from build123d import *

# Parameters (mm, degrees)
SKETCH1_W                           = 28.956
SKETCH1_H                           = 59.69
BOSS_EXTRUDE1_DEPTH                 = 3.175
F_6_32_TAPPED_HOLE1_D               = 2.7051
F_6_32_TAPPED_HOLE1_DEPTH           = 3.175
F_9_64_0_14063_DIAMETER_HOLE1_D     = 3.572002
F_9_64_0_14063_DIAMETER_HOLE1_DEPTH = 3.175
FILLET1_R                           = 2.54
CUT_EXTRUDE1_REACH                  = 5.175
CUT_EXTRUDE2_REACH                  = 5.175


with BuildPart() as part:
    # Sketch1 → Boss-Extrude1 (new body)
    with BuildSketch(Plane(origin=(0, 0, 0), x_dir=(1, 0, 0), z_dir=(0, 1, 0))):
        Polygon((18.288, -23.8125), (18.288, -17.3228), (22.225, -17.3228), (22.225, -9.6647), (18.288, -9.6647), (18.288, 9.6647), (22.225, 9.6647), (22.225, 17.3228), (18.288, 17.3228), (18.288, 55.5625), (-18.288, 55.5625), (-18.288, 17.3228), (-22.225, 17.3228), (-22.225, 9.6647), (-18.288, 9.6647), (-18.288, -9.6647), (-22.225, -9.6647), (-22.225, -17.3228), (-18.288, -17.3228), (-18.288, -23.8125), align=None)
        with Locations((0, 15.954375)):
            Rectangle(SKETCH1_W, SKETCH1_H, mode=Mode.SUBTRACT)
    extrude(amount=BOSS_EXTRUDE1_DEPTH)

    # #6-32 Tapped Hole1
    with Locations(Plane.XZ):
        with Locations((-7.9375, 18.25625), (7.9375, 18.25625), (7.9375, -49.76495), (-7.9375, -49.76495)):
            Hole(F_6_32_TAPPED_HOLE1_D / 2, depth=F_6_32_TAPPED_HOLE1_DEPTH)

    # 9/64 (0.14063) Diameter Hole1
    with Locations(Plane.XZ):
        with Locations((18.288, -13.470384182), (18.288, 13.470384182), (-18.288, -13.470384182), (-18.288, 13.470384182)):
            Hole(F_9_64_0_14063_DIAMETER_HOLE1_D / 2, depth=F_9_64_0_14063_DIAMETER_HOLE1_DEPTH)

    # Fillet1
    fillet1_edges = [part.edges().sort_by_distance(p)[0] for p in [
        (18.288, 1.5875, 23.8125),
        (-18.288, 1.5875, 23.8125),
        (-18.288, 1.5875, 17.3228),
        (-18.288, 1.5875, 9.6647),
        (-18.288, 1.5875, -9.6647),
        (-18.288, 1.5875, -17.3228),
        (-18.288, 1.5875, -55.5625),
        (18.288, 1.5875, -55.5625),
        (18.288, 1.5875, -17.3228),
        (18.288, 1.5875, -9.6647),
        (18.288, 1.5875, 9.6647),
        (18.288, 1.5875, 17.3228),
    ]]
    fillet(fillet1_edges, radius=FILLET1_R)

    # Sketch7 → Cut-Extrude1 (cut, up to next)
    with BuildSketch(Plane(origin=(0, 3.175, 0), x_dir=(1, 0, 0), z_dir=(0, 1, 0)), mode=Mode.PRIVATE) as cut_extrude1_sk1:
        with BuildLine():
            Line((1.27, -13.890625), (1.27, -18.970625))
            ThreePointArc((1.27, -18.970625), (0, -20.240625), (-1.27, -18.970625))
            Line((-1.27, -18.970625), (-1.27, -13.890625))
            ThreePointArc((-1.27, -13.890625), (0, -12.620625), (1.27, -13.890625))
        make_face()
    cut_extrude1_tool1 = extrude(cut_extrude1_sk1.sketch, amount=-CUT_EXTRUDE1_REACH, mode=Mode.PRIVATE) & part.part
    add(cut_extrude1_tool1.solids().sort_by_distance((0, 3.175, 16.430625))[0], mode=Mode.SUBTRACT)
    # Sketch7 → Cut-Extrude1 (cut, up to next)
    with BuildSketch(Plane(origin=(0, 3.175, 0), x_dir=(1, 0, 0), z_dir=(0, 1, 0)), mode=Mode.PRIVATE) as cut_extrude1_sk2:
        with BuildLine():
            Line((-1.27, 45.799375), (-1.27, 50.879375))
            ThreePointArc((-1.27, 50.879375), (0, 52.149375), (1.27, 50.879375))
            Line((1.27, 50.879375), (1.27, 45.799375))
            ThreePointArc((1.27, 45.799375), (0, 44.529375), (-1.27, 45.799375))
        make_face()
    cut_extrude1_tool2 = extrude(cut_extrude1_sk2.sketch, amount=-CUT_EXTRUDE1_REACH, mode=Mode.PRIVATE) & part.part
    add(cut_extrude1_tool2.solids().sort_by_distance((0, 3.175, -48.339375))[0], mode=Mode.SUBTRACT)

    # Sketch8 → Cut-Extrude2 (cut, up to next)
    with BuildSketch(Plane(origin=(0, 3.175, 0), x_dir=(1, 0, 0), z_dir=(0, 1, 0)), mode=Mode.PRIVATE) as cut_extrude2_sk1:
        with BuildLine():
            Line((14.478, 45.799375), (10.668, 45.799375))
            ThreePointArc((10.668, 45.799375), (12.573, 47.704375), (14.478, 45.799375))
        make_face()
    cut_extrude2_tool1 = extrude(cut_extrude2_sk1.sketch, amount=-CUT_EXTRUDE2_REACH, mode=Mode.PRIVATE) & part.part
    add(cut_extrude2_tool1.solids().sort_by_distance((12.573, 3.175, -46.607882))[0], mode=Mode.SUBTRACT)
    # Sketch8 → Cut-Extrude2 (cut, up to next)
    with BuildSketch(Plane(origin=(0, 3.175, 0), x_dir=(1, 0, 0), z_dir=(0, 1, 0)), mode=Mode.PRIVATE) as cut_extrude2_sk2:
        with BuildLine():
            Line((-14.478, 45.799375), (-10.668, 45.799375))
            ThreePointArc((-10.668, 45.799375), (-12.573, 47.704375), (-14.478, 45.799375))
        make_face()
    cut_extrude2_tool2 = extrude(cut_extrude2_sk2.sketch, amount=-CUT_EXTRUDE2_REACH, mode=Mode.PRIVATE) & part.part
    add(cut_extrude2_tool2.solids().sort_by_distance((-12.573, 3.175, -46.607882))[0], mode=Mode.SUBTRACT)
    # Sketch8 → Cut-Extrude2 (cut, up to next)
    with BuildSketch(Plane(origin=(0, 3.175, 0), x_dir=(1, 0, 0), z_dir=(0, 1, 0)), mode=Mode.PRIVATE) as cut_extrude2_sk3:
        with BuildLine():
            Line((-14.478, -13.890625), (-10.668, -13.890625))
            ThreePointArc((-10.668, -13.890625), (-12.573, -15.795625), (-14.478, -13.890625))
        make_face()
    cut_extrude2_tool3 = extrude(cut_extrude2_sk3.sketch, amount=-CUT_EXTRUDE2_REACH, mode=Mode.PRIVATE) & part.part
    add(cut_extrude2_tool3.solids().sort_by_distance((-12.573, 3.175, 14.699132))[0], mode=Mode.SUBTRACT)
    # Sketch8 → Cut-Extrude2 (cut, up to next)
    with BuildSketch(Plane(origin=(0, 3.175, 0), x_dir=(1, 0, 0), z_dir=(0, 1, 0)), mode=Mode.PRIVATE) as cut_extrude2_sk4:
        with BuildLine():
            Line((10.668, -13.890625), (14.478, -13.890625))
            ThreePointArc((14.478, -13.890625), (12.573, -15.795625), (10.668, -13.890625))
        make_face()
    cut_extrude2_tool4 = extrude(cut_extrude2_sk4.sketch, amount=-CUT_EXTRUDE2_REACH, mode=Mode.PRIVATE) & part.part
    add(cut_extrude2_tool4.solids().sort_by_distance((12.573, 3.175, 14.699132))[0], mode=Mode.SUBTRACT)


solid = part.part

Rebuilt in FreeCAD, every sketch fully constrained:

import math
import FreeCAD as App
import Part
import Sketcher
from FreeCAD import Vector
Q = App.Units.Quantity


def edges_at(feature, points):
    """Names of the edges that pass closest to the given points."""
    edges = feature.Shape.Edges
    near = lambda p: min(range(len(edges)), key=lambda i: edges[i].distToShape(Part.Vertex(*p))[0])
    return sorted({f"Edge{near(p) + 1}" for p in points})

doc = App.newDocument("Part")
body = doc.addObject("PartDesign::Body", "Body")

sketch1 = doc.addObject("Sketcher::SketchObject", "Sketch")
body.addObject(sketch1)
sketch1.AttachmentSupport = (doc.XZ_Plane, [""])
sketch1.MapMode = "FlatFace"
sketch1.addGeometry(Part.LineSegment(Vector(18.3, 23.8, 0), Vector(18.3, 17.3, 0)), False)
sketch1.addGeometry(Part.LineSegment(Vector(18.3, 17.3, 0), Vector(22.2, 17.3, 0)), False)
sketch1.addGeometry(Part.LineSegment(Vector(22.2, 17.3, 0), Vector(22.2, 9.7, 0)), False)
sketch1.addGeometry(Part.LineSegment(Vector(22.2, 9.7, 0), Vector(18.3, 9.7, 0)), False)
sketch1.addGeometry(Part.LineSegment(Vector(18.3, 9.7, 0), Vector(18.3, -9.7, 0)), False)
sketch1.addGeometry(Part.LineSegment(Vector(18.3, -9.7, 0), Vector(22.2, -9.7, 0)), False)
sketch1.addGeometry(Part.LineSegment(Vector(22.2, -9.7, 0), Vector(22.2, -17.3, 0)), False)
sketch1.addGeometry(Part.LineSegment(Vector(22.2, -17.3, 0), Vector(18.3, -17.3, 0)), False)
sketch1.addGeometry(Part.LineSegment(Vector(18.3, -17.3, 0), Vector(18.3, -55.6, 0)), False)
sketch1.addGeometry(Part.LineSegment(Vector(18.3, -55.6, 0), Vector(-18.3, -55.6, 0)), False)
sketch1.addGeometry(Part.LineSegment(Vector(-18.3, -55.6, 0), Vector(-18.3, -17.3, 0)), False)
sketch1.addGeometry(Part.LineSegment(Vector(-18.3, -17.3, 0), Vector(-22.2, -17.3, 0)), False)
sketch1.addGeometry(Part.LineSegment(Vector(-22.2, -17.3, 0), Vector(-22.2, -9.7, 0)), False)
sketch1.addGeometry(Part.LineSegment(Vector(-22.2, -9.7, 0), Vector(-18.3, -9.7, 0)), False)
sketch1.addGeometry(Part.LineSegment(Vector(-18.3, -9.7, 0), Vector(-18.3, 9.7, 0)), False)
sketch1.addGeometry(Part.LineSegment(Vector(-18.3, 9.7, 0), Vector(-22.2, 9.7, 0)), False)
sketch1.addGeometry(Part.LineSegment(Vector(-22.2, 9.7, 0), Vector(-22.2, 17.3, 0)), False)
sketch1.addGeometry(Part.LineSegment(Vector(-22.2, 17.3, 0), Vector(-18.3, 17.3, 0)), False)
sketch1.addGeometry(Part.LineSegment(Vector(-18.3, 17.3, 0), Vector(-18.3, 23.8, 0)), False)
sketch1.addGeometry(Part.LineSegment(Vector(-18.3, 23.8, 0), Vector(18.3, 23.8, 0)), False)
sketch1.addGeometry(Part.LineSegment(Vector(14.5, 13.9, 0), Vector(-14.5, 13.9, 0)), False)
sketch1.addGeometry(Part.LineSegment(Vector(-14.5, 13.9, 0), Vector(-14.5, -45.8, 0)), False)
sketch1.addGeometry(Part.LineSegment(Vector(-14.5, -45.8, 0), Vector(14.5, -45.8, 0)), False)
sketch1.addGeometry(Part.LineSegment(Vector(14.5, -45.8, 0), Vector(14.5, 13.9, 0)), False)
sketch1.addConstraint(Sketcher.Constraint("Coincident", 0, 2, 1, 1))
sketch1.addConstraint(Sketcher.Constraint("Coincident", 1, 2, 2, 1))
sketch1.addConstraint(Sketcher.Constraint("Coincident", 2, 2, 3, 1))
sketch1.addConstraint(Sketcher.Constraint("Coincident", 3, 2, 4, 1))
sketch1.addConstraint(Sketcher.Constraint("Coincident", 4, 2, 5, 1))
sketch1.addConstraint(Sketcher.Constraint("Coincident", 5, 2, 6, 1))
sketch1.addConstraint(Sketcher.Constraint("Coincident", 6, 2, 7, 1))
sketch1.addConstraint(Sketcher.Constraint("Coincident", 7, 2, 8, 1))
sketch1.addConstraint(Sketcher.Constraint("Coincident", 8, 2, 9, 1))
sketch1.addConstraint(Sketcher.Constraint("Coincident", 9, 2, 10, 1))
sketch1.addConstraint(Sketcher.Constraint("Coincident", 10, 2, 11, 1))
sketch1.addConstraint(Sketcher.Constraint("Coincident", 11, 2, 12, 1))
sketch1.addConstraint(Sketcher.Constraint("Coincident", 12, 2, 13, 1))
sketch1.addConstraint(Sketcher.Constraint("Coincident", 13, 2, 14, 1))
sketch1.addConstraint(Sketcher.Constraint("Coincident", 14, 2, 15, 1))
sketch1.addConstraint(Sketcher.Constraint("Coincident", 15, 2, 16, 1))
sketch1.addConstraint(Sketcher.Constraint("Coincident", 16, 2, 17, 1))
sketch1.addConstraint(Sketcher.Constraint("Coincident", 17, 2, 18, 1))
sketch1.addConstraint(Sketcher.Constraint("Coincident", 18, 2, 19, 1))
sketch1.addConstraint(Sketcher.Constraint("Coincident", 19, 2, 0, 1))
sketch1.addConstraint(Sketcher.Constraint("Coincident", 20, 2, 21, 1))
sketch1.addConstraint(Sketcher.Constraint("Coincident", 21, 2, 22, 1))
sketch1.addConstraint(Sketcher.Constraint("Coincident", 22, 2, 23, 1))
sketch1.addConstraint(Sketcher.Constraint("Coincident", 23, 2, 20, 1))
sketch1.addConstraint(Sketcher.Constraint("Vertical", 0))
sketch1.addConstraint(Sketcher.Constraint("Horizontal", 1))
sketch1.addConstraint(Sketcher.Constraint("Vertical", 2))
sketch1.addConstraint(Sketcher.Constraint("Horizontal", 3))
sketch1.addConstraint(Sketcher.Constraint("Vertical", 4))
sketch1.addConstraint(Sketcher.Constraint("Horizontal", 5))
sketch1.addConstraint(Sketcher.Constraint("Vertical", 6))
sketch1.addConstraint(Sketcher.Constraint("Horizontal", 7))
sketch1.addConstraint(Sketcher.Constraint("Vertical", 8))
sketch1.addConstraint(Sketcher.Constraint("Horizontal", 9))
sketch1.addConstraint(Sketcher.Constraint("Vertical", 10))
sketch1.addConstraint(Sketcher.Constraint("Horizontal", 11))
sketch1.addConstraint(Sketcher.Constraint("Vertical", 12))
sketch1.addConstraint(Sketcher.Constraint("Horizontal", 13))
sketch1.addConstraint(Sketcher.Constraint("Vertical", 14))
sketch1.addConstraint(Sketcher.Constraint("Horizontal", 15))
sketch1.addConstraint(Sketcher.Constraint("Vertical", 16))
sketch1.addConstraint(Sketcher.Constraint("Horizontal", 17))
sketch1.addConstraint(Sketcher.Constraint("Vertical", 18))
sketch1.addConstraint(Sketcher.Constraint("Horizontal", 19))
sketch1.addConstraint(Sketcher.Constraint("Horizontal", 20))
sketch1.addConstraint(Sketcher.Constraint("Vertical", 21))
sketch1.addConstraint(Sketcher.Constraint("Horizontal", 22))
sketch1.addConstraint(Sketcher.Constraint("Vertical", 23))
sketch1.addConstraint(Sketcher.Constraint("Symmetric", 0, 2, 10, 2, -1, 1))
sketch1.addConstraint(Sketcher.Constraint("Symmetric", 2, 2, 12, 2, -1, 1))
sketch1.addConstraint(Sketcher.Constraint("Symmetric", 4, 2, 14, 2, -1, 1))
sketch1.addConstraint(Sketcher.Constraint("Symmetric", 6, 2, 16, 2, -1, 1))
sketch1.addConstraint(Sketcher.Constraint("Symmetric", 7, 2, 10, 2, -2))
sketch1.addConstraint(Sketcher.Constraint("Symmetric", 5, 2, 12, 2, -2))
sketch1.addConstraint(Sketcher.Constraint("Vertical", 0, 2, 3, 2))
sketch1.addConstraint(Sketcher.Constraint("Vertical", 14, 2, 17, 2))
sketch1.addConstraint(Sketcher.Constraint("DistanceX", 9, 2, 9, 1, Q("1.44 in")))
sketch1.addConstraint(Sketcher.Constraint("DistanceX", 20, 2, 20, 1, Q("1.14 in")))
sketch1.addConstraint(Sketcher.Constraint("DistanceY", 21, 2, 21, 1, Q("2.35 in")))
sketch1.addConstraint(Sketcher.Constraint("DistanceX", 1, 1, 1, 2, Q("0.155 in")))
sketch1.addConstraint(Sketcher.Constraint("DistanceY", 4, 2, 4, 1, Q("0.761 in")))
sketch1.addConstraint(Sketcher.Constraint("DistanceX", 20, 2, -1, 1, Q("0.57 in")))
sketch1.addConstraint(Sketcher.Constraint("DistanceY", 0, 2, 0, 1, Q("0.2555 in")))
sketch1.addConstraint(Sketcher.Constraint("DistanceY", 2, 2, 2, 1, Q("0.3015 in")))
sketch1.addConstraint(Sketcher.Constraint("DistanceY", 8, 2, 8, 1, Q("1.5055 in")))
sketch1.addConstraint(Sketcher.Constraint("DistanceY", -1, 1, 20, 2, Q("0.546875 in")))
pad1 = doc.addObject("PartDesign::Pad", "Pad")
body.addObject(pad1)
pad1.Profile = sketch1
pad1.Length = Q("0.125 in")
pad1.Reversed = True

sketch2 = doc.addObject("Sketcher::SketchObject", "Sketch001")
body.addObject(sketch2)
sketch2.AttachmentSupport = (doc.XZ_Plane, [""])
sketch2.MapMode = "FlatFace"
sketch2.addGeometry(Part.Circle(Vector(-7.9, 18.3, 0), Vector(0, 0, 1), 1.4), False)
sketch2.addGeometry(Part.Circle(Vector(7.9, 18.3, 0), Vector(0, 0, 1), 1.4), False)
sketch2.addGeometry(Part.Circle(Vector(7.9, -49.8, 0), Vector(0, 0, 1), 1.4), False)
sketch2.addGeometry(Part.Circle(Vector(-7.9, -49.8, 0), Vector(0, 0, 1), 1.4), False)
sketch2.addConstraint(Sketcher.Constraint("Equal", 0, 1))
sketch2.addConstraint(Sketcher.Constraint("Equal", 1, 2))
sketch2.addConstraint(Sketcher.Constraint("Equal", 2, 3))
sketch2.addConstraint(Sketcher.Constraint("Symmetric", 0, 3, 1, 3, -2))
sketch2.addConstraint(Sketcher.Constraint("Symmetric", 2, 3, 3, 3, -2))
sketch2.addConstraint(Sketcher.Constraint("Vertical", 1, 3, 2, 3))
sketch2.addConstraint(Sketcher.Constraint("Diameter", 0, Q("0.1065 in")))
sketch2.addConstraint(Sketcher.Constraint("DistanceX", 0, 3, -1, 1, Q("0.3125 in")))
sketch2.addConstraint(Sketcher.Constraint("DistanceY", -1, 1, 0, 3, Q("0.71875 in")))
sketch2.addConstraint(Sketcher.Constraint("DistanceY", 2, 3, 1, 3, Q("2.678 in")))
doc.recompute()
hole = doc.addObject("PartDesign::Hole", "Hole")
body.addObject(hole)
hole.Profile = sketch2
hole.ThreadType = "None"
hole.Diameter = Q("0.1065 in")
hole.DepthType = "Dimension"
hole.Depth = Q("0.125 in")
hole.DrillPoint = "Flat"

sketch3 = doc.addObject("Sketcher::SketchObject", "Sketch002")
body.addObject(sketch3)
sketch3.AttachmentSupport = (doc.XZ_Plane, [""])
sketch3.MapMode = "FlatFace"
sketch3.addGeometry(Part.Circle(Vector(18.3, -13.5, 0), Vector(0, 0, 1), 1.8), False)
sketch3.addGeometry(Part.Circle(Vector(18.3, 13.5, 0), Vector(0, 0, 1), 1.8), False)
sketch3.addGeometry(Part.Circle(Vector(-18.3, -13.5, 0), Vector(0, 0, 1), 1.8), False)
sketch3.addGeometry(Part.Circle(Vector(-18.3, 13.5, 0), Vector(0, 0, 1), 1.8), False)
sketch3.addConstraint(Sketcher.Constraint("Equal", 0, 1))
sketch3.addConstraint(Sketcher.Constraint("Equal", 1, 2))
sketch3.addConstraint(Sketcher.Constraint("Equal", 2, 3))
sketch3.addConstraint(Sketcher.Constraint("Symmetric", 1, 3, 2, 3, -1, 1))
sketch3.addConstraint(Sketcher.Constraint("Symmetric", 0, 3, 3, 3, -1, 1))
sketch3.addConstraint(Sketcher.Constraint("Symmetric", 0, 3, 2, 3, -2))
sketch3.addConstraint(Sketcher.Constraint("Diameter", 0, 3.572002))
sketch3.addConstraint(Sketcher.Constraint("DistanceX", -1, 1, 0, 3, Q("0.72 in")))
sketch3.addConstraint(Sketcher.Constraint("DistanceY", 0, 3, 1, 3, 26.940768))
doc.recompute()
hole2 = doc.addObject("PartDesign::Hole", "Hole001")
body.addObject(hole2)
hole2.Profile = sketch3
hole2.ThreadType = "None"
hole2.Diameter = 3.572002
hole2.DepthType = "Dimension"
hole2.Depth = Q("0.125 in")
hole2.DrillPoint = "Flat"
doc.recompute()

fillet = doc.addObject("PartDesign::Fillet", "Fillet")
body.addObject(fillet)
fillet.Base = (hole2, edges_at(hole2, [
    (18.288, 1.587, 23.812),
    (-18.288, 1.587, 23.812),
    (-18.288, 1.587, 17.323),
    (-18.288, 1.587, 9.665),
    (-18.288, 1.587, -9.665),
    (-18.288, 1.587, -17.323),
    (-18.288, 1.587, -55.562),
    (18.288, 1.587, -55.562),
    (18.288, 1.587, -17.323),
    (18.288, 1.587, -9.665),
    (18.288, 1.587, 9.665),
    (18.288, 1.587, 17.323),
]))
fillet.Radius = Q("0.1 in")

sketch4 = doc.addObject("Sketcher::SketchObject", "Sketch003")
body.addObject(sketch4)
sketch4.AttachmentSupport = (doc.XZ_Plane, [""])
sketch4.MapMode = "FlatFace"
sketch4.AttachmentOffset = App.Placement(Vector(0, 0, -0.125 * 25.4), App.Rotation())
sketch4.addGeometry(Part.LineSegment(Vector(1.3, 19, 0), Vector(1.3, 13.9, 0)), False)
sketch4.addGeometry(Part.ArcOfCircle(Part.Circle(Vector(0, 13.9, 0), Vector(0, 0, 1), 1.3), math.radians(180), math.radians(360)), False)
sketch4.addGeometry(Part.LineSegment(Vector(-1.3, 13.9, 0), Vector(-1.3, 19, 0)), False)
sketch4.addGeometry(Part.ArcOfCircle(Part.Circle(Vector(0, 19, 0), Vector(0, 0, 1), 1.3), math.radians(0), math.radians(180)), False)
sketch4.addConstraint(Sketcher.Constraint("Tangent", 0, 2, 1, 2))
sketch4.addConstraint(Sketcher.Constraint("Tangent", 1, 1, 2, 1))
sketch4.addConstraint(Sketcher.Constraint("Tangent", 2, 2, 3, 2))
sketch4.addConstraint(Sketcher.Constraint("Tangent", 3, 1, 0, 1))
sketch4.addConstraint(Sketcher.Constraint("Vertical", 0))
sketch4.addConstraint(Sketcher.Constraint("Vertical", 2))
sketch4.addConstraint(Sketcher.Constraint("PointOnObject", 1, 3, -2))
sketch4.addConstraint(Sketcher.Constraint("Radius", 1, Q("0.05 in")))
sketch4.addConstraint(Sketcher.Constraint("DistanceY", 0, 2, 0, 1, Q("0.2 in")))
sketch4.addConstraint(Sketcher.Constraint("DistanceY", -1, 1, 1, 3, Q("0.546875 in")))
pocket1 = doc.addObject("PartDesign::Pocket", "Pocket")
body.addObject(pocket1)
pocket1.Profile = sketch4
pocket1.Type = "UpToFirst"
pocket1.Reversed = True

sketch5 = doc.addObject("Sketcher::SketchObject", "Sketch004")
body.addObject(sketch5)
sketch5.AttachmentSupport = (doc.XZ_Plane, [""])
sketch5.MapMode = "FlatFace"
sketch5.AttachmentOffset = App.Placement(Vector(0, 0, -0.125 * 25.4), App.Rotation())
sketch5.addGeometry(Part.LineSegment(Vector(-1.3, -50.9, 0), Vector(-1.3, -45.8, 0)), False)
sketch5.addGeometry(Part.ArcOfCircle(Part.Circle(Vector(0, -45.8, 0), Vector(0, 0, 1), 1.3), math.radians(0), math.radians(180)), False)
sketch5.addGeometry(Part.LineSegment(Vector(1.3, -45.8, 0), Vector(1.3, -50.9, 0)), False)
sketch5.addGeometry(Part.ArcOfCircle(Part.Circle(Vector(0, -50.9, 0), Vector(0, 0, 1), 1.3), math.radians(180), math.radians(360)), False)
sketch5.addConstraint(Sketcher.Constraint("Tangent", 0, 2, 1, 2))
sketch5.addConstraint(Sketcher.Constraint("Tangent", 1, 1, 2, 1))
sketch5.addConstraint(Sketcher.Constraint("Tangent", 2, 2, 3, 2))
sketch5.addConstraint(Sketcher.Constraint("Tangent", 3, 1, 0, 1))
sketch5.addConstraint(Sketcher.Constraint("Vertical", 0))
sketch5.addConstraint(Sketcher.Constraint("Vertical", 2))
sketch5.addConstraint(Sketcher.Constraint("PointOnObject", 1, 3, -2))
sketch5.addConstraint(Sketcher.Constraint("Radius", 1, Q("0.05 in")))
sketch5.addConstraint(Sketcher.Constraint("DistanceY", 0, 1, 0, 2, Q("0.2 in")))
sketch5.addConstraint(Sketcher.Constraint("DistanceY", 1, 3, -1, 1, 45.799375))
pocket2 = doc.addObject("PartDesign::Pocket", "Pocket001")
body.addObject(pocket2)
pocket2.Profile = sketch5
pocket2.Type = "UpToFirst"
pocket2.Reversed = True

sketch6 = doc.addObject("Sketcher::SketchObject", "Sketch005")
body.addObject(sketch6)
sketch6.AttachmentSupport = (doc.XZ_Plane, [""])
sketch6.MapMode = "FlatFace"
sketch6.AttachmentOffset = App.Placement(Vector(0, 0, -0.125 * 25.4), App.Rotation())
sketch6.addGeometry(Part.LineSegment(Vector(10.7, -45.8, 0), Vector(14.5, -45.8, 0)), False)
sketch6.addGeometry(Part.ArcOfCircle(Part.Circle(Vector(12.6, -45.8, 0), Vector(0, 0, 1), 1.9), math.radians(180), math.radians(360)), False)
sketch6.addConstraint(Sketcher.Constraint("Coincident", 0, 1, 1, 1))
sketch6.addConstraint(Sketcher.Constraint("Coincident", 1, 2, 0, 2))
sketch6.addConstraint(Sketcher.Constraint("Horizontal", 0))
sketch6.addConstraint(Sketcher.Constraint("Horizontal", 1, 3, 0, 1))
sketch6.addConstraint(Sketcher.Constraint("Radius", 1, Q("0.075 in")))
sketch6.addConstraint(Sketcher.Constraint("DistanceX", -1, 1, 0, 1, Q("0.42 in")))
sketch6.addConstraint(Sketcher.Constraint("DistanceY", 1, 3, -1, 1, 45.799375))
pocket3 = doc.addObject("PartDesign::Pocket", "Pocket002")
body.addObject(pocket3)
pocket3.Profile = sketch6
pocket3.Type = "UpToFirst"
pocket3.Reversed = True

sketch7 = doc.addObject("Sketcher::SketchObject", "Sketch006")
body.addObject(sketch7)
sketch7.AttachmentSupport = (doc.XZ_Plane, [""])
sketch7.MapMode = "FlatFace"
sketch7.AttachmentOffset = App.Placement(Vector(0, 0, -0.125 * 25.4), App.Rotation())
sketch7.addGeometry(Part.LineSegment(Vector(-14.5, -45.8, 0), Vector(-10.7, -45.8, 0)), False)
sketch7.addGeometry(Part.ArcOfCircle(Part.Circle(Vector(-12.6, -45.8, 0), Vector(0, 0, 1), 1.9), math.radians(180), math.radians(360)), False)
sketch7.addConstraint(Sketcher.Constraint("Coincident", 0, 1, 1, 1))
sketch7.addConstraint(Sketcher.Constraint("Coincident", 1, 2, 0, 2))
sketch7.addConstraint(Sketcher.Constraint("Horizontal", 0))
sketch7.addConstraint(Sketcher.Constraint("Horizontal", 1, 3, 0, 1))
sketch7.addConstraint(Sketcher.Constraint("Radius", 1, Q("0.075 in")))
sketch7.addConstraint(Sketcher.Constraint("DistanceX", 0, 1, -1, 1, Q("0.57 in")))
sketch7.addConstraint(Sketcher.Constraint("DistanceY", 1, 3, -1, 1, 45.799375))
pocket4 = doc.addObject("PartDesign::Pocket", "Pocket003")
body.addObject(pocket4)
pocket4.Profile = sketch7
pocket4.Type = "UpToFirst"
pocket4.Reversed = True

sketch8 = doc.addObject("Sketcher::SketchObject", "Sketch007")
body.addObject(sketch8)
sketch8.AttachmentSupport = (doc.XZ_Plane, [""])
sketch8.MapMode = "FlatFace"
sketch8.AttachmentOffset = App.Placement(Vector(0, 0, -0.125 * 25.4), App.Rotation())
sketch8.addGeometry(Part.LineSegment(Vector(-10.7, 13.9, 0), Vector(-14.5, 13.9, 0)), False)
sketch8.addGeometry(Part.ArcOfCircle(Part.Circle(Vector(-12.6, 13.9, 0), Vector(0, 0, 1), 1.9), math.radians(0), math.radians(180)), False)
sketch8.addConstraint(Sketcher.Constraint("Coincident", 0, 1, 1, 1))
sketch8.addConstraint(Sketcher.Constraint("Coincident", 1, 2, 0, 2))
sketch8.addConstraint(Sketcher.Constraint("Horizontal", 0))
sketch8.addConstraint(Sketcher.Constraint("Horizontal", 1, 3, 0, 1))
sketch8.addConstraint(Sketcher.Constraint("Radius", 1, Q("0.075 in")))
sketch8.addConstraint(Sketcher.Constraint("DistanceX", 0, 1, -1, 1, Q("0.42 in")))
sketch8.addConstraint(Sketcher.Constraint("DistanceY", -1, 1, 1, 3, Q("0.546875 in")))
pocket5 = doc.addObject("PartDesign::Pocket", "Pocket004")
body.addObject(pocket5)
pocket5.Profile = sketch8
pocket5.Type = "UpToFirst"
pocket5.Reversed = True

sketch9 = doc.addObject("Sketcher::SketchObject", "Sketch008")
body.addObject(sketch9)
sketch9.AttachmentSupport = (doc.XZ_Plane, [""])
sketch9.MapMode = "FlatFace"
sketch9.AttachmentOffset = App.Placement(Vector(0, 0, -0.125 * 25.4), App.Rotation())
sketch9.addGeometry(Part.LineSegment(Vector(14.5, 13.9, 0), Vector(10.7, 13.9, 0)), False)
sketch9.addGeometry(Part.ArcOfCircle(Part.Circle(Vector(12.6, 13.9, 0), Vector(0, 0, 1), 1.9), math.radians(0), math.radians(180)), False)
sketch9.addConstraint(Sketcher.Constraint("Coincident", 0, 1, 1, 1))
sketch9.addConstraint(Sketcher.Constraint("Coincident", 1, 2, 0, 2))
sketch9.addConstraint(Sketcher.Constraint("Horizontal", 0))
sketch9.addConstraint(Sketcher.Constraint("Horizontal", 1, 3, 0, 1))
sketch9.addConstraint(Sketcher.Constraint("Radius", 1, Q("0.075 in")))
sketch9.addConstraint(Sketcher.Constraint("DistanceX", -1, 1, 0, 1, Q("0.57 in")))
sketch9.addConstraint(Sketcher.Constraint("DistanceY", -1, 1, 1, 3, Q("0.546875 in")))
pocket6 = doc.addObject("PartDesign::Pocket", "Pocket005")
body.addObject(pocket6)
pocket6.Profile = sketch9
pocket6.Type = "UpToFirst"
pocket6.Reversed = True

doc.recompute()
